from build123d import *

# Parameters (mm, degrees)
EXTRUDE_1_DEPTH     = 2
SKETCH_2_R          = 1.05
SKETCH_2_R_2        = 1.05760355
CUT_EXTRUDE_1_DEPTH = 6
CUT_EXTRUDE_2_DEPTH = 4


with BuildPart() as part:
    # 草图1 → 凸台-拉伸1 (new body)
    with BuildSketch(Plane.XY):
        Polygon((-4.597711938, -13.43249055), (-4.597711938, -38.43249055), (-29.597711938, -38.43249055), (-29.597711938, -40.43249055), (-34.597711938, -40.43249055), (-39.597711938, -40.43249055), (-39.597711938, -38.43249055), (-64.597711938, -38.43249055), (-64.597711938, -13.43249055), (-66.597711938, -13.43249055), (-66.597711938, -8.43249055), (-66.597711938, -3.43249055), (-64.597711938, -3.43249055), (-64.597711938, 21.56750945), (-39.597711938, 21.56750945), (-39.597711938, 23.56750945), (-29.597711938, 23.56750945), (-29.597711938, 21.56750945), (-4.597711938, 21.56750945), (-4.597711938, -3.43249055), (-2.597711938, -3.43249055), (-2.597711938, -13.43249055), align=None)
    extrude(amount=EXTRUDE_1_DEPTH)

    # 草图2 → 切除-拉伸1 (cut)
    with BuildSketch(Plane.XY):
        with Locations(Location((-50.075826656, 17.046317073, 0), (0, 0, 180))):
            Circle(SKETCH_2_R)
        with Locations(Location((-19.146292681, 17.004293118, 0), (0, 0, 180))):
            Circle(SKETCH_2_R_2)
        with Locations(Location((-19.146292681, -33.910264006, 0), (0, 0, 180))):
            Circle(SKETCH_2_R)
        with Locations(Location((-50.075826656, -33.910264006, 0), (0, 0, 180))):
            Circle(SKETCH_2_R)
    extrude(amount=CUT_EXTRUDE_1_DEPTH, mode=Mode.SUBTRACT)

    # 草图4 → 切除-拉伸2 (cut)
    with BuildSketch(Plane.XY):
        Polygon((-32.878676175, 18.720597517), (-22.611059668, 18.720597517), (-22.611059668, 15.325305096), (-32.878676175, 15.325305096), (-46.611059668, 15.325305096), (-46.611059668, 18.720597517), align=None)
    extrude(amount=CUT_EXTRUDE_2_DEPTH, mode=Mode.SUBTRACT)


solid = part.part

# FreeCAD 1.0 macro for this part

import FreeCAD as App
import Part
import Sketcher


def add_polygon(sketch, points):
    """Adds a closed chain of lines whose ends are joined by coincident constraints."""
    first, n = sketch.GeometryCount, len(points)
    for a, b in zip(points, points[1:] + points[:1]):
        sketch.addGeometry(Part.LineSegment(App.Vector(*a, 0), App.Vector(*b, 0)), False)
    for i in range(n):
        sketch.addConstraint(Sketcher.Constraint("Coincident", first + i, 2, first + (i + 1) % n, 1))

doc = App.newDocument("Part")
params = doc.addObject("Spreadsheet::Sheet", "Params")
for row, (alias, value) in enumerate([
    ("sketch1_width", "2 mm"),
    ("sketch1_width2", "25 mm"),
    ("sketch1_width3", "10 mm"),
    ("pad1_length", "2 mm"),
    ("sketch2_diameter", "2.1 mm"),
    ("pocket1_length", "6 mm"),
    ("sketch3_width", "24 mm"),
    ("pocket2_length", "4 mm"),
], start=1):
    params.set(f"A{row}", alias)
    params.set(f"B{row}", "=" + value)
    params.setAlias(f"B{row}", alias)

body = doc.addObject("PartDesign::Body", "Body")

# Sketch on XY plane
sketch1 = doc.addObject("Sketcher::SketchObject", "Sketch")
body.addObject(sketch1)
sketch1.AttachmentSupport = (doc.XY_Plane, [""])
sketch1.MapMode = "FlatFace"
add_polygon(sketch1, [(-4.6, -38.4), (-4.6, -13.4), (-2.6, -13.4), (-2.6, -3.4), (-4.6, -3.4), (-4.6, 21.6), (-29.6, 21.6), (-29.6, 23.6), (-39.6, 23.6), (-39.6, 21.6), (-64.6, 21.6), (-64.6, -3.4), (-66.6, -3.4), (-66.6, -13.4), (-64.6, -13.4), (-64.6, -38.4), (-39.6, -38.4), (-39.6, -40.4), (-29.6, -40.4), (-29.6, -38.4)])  # lines 0-19
sketch1.addConstraint([
    Sketcher.Constraint("Vertical", 0),
    Sketcher.Constraint("Horizontal", 1),
    Sketcher.Constraint("Vertical", 2),
    Sketcher.Constraint("Horizontal", 3),
    Sketcher.Constraint("Vertical", 4),
    Sketcher.Constraint("Horizontal", 5),
    Sketcher.Constraint("Vertical", 6),
    Sketcher.Constraint("Horizontal", 7),
    Sketcher.Constraint("Vertical", 8),
    Sketcher.Constraint("Horizontal", 9),
    Sketcher.Constraint("Vertical", 10),
    Sketcher.Constraint("Horizontal", 11),
    Sketcher.Constraint("Vertical", 12),
    Sketcher.Constraint("Horizontal", 13),
    Sketcher.Constraint("Vertical", 14),
    Sketcher.Constraint("Horizontal", 15),
    Sketcher.Constraint("Vertical", 16),
    Sketcher.Constraint("Horizontal", 17),
    Sketcher.Constraint("Vertical", 18),
    Sketcher.Constraint("Horizontal", 19),
    Sketcher.Constraint("Horizontal", 5, 2, 8, 2),
    Sketcher.Constraint("Horizontal", 3, 2, 10, 2),
    Sketcher.Constraint("Horizontal", 1, 2, 12, 2),
    Sketcher.Constraint("Horizontal", 15, 2, 18, 2),
    Sketcher.Constraint("Vertical", 0, 2, 3, 2),
    Sketcher.Constraint("Vertical", 10, 2, 13, 2),
    Sketcher.Constraint("Vertical", 8, 2, 15, 2),
    Sketcher.Constraint("Vertical", 6, 2, 17, 2),
    Sketcher.Constraint("Equal", 5, 9),
    Sketcher.Constraint("Equal", 3, 11),
    Sketcher.Constraint("Equal", 19, 0),
    Sketcher.Constraint("Equal", 17, 2),
    Sketcher.Constraint("Equal", 0, 4),
    Sketcher.Constraint("Equal", 13, 6),
    Sketcher.Constraint("Equal", 8, 16),
    Sketcher.Constraint("DistanceX", 1, 1, 1, 2, 2.0),
    Sketcher.Constraint("DistanceX", 5, 2, 5, 1, 25.0),
    Sketcher.Constraint("DistanceX", 7, 2, 7, 1, 10.0),
    Sketcher.Constraint("DistanceX", 0, 2, -1, 1, 4.597712),
    Sketcher.Constraint("DistanceY", 0, 2, -1, 1, 13.432491),
])
sketch1.setExpression("Constraints[55]", "Params.sketch1_width")
sketch1.setExpression("Constraints[56]", "Params.sketch1_width2")
sketch1.setExpression("Constraints[57]", "Params.sketch1_width3")
pad1 = doc.addObject("PartDesign::Pad", "Pad")
body.addObject(pad1)
pad1.Profile = sketch1
pad1.setExpression("Length", "Params.pad1_length")

# Sketch on XY plane
sketch2 = doc.addObject("Sketcher::SketchObject", "Sketch001")
body.addObject(sketch2)
sketch2.AttachmentSupport = (doc.XY_Plane, [""])
sketch2.MapMode = "FlatFace"
sketch2.addGeometry([
    Part.Circle(App.Vector(-50.1, 17, 0), App.Vector(0, 0, 1), 1.1),
    Part.Circle(App.Vector(-19.1, 17, 0), App.Vector(0, 0, 1), 1.1),
    Part.Circle(App.Vector(-19.1, -33.9, 0), App.Vector(0, 0, 1), 1.1),
    Part.Circle(App.Vector(-50.1, -33.9, 0), App.Vector(0, 0, 1), 1.1),
], False)
sketch2.addConstraint([
    Sketcher.Constraint("Equal", 0, 2),
    Sketcher.Constraint("Equal", 2, 3),
    Sketcher.Constraint("Horizontal", 2, 3, 3, 3),
    Sketcher.Constraint("Vertical", 1, 3, 2, 3),
    Sketcher.Constraint("Vertical", 0, 3, 3, 3),
    Sketcher.Constraint("Diameter", 0, 2.1),
    Sketcher.Constraint("Diameter", 1, 2.115207),
    Sketcher.Constraint("DistanceY", 2, 3, 0, 3, 50.956581),
    Sketcher.Constraint("DistanceX", 0, 3, -1, 1, 50.075827),
    Sketcher.Constraint("DistanceY", -1, 1, 0, 3, 17.046317),
    Sketcher.Constraint("DistanceX", 1, 3, -1, 1, 19.146293),
    Sketcher.Constraint("DistanceY", -1, 1, 1, 3, 17.004293),
])
sketch2.setExpression("Constraints[5]", "Params.sketch2_diameter")
pocket1 = doc.addObject("PartDesign::Pocket", "Pocket")
body.addObject(pocket1)
pocket1.Profile = sketch2
pocket1.setExpression("Length", "Params.pocket1_length")
pocket1.Reversed = True

# Sketch on XY plane
sketch3 = doc.addObject("Sketcher::SketchObject", "Sketch002")
body.addObject(sketch3)
sketch3.AttachmentSupport = (doc.XY_Plane, [""])
sketch3.MapMode = "FlatFace"
add_polygon(sketch3, [(-22.6, 18.7), (-46.6, 18.7), (-46.6, 15.3), (-22.6, 15.3)])  # lines 0-3
sketch3.addConstraint([
    Sketcher.Constraint("Horizontal", 0),
    Sketcher.Constraint("Vertical", 1),
    Sketcher.Constraint("Horizontal", 2),
    Sketcher.Constraint("Vertical", 3),
    Sketcher.Constraint("DistanceX", 0, 2, 0, 1, 24.0),
    Sketcher.Constraint("DistanceY", 1, 2, 1, 1, 3.395292),
    Sketcher.Constraint("DistanceX", 0, 2, -1, 1, 46.61106),
    Sketcher.Constraint("DistanceY", -1, 1, 0, 2, 18.720598),
])
sketch3.setExpression("Constraints[8]", "Params.sketch3_width")
pocket2 = doc.addObject("PartDesign::Pocket", "Pocket001")
body.addObject(pocket2)
pocket2.Profile = sketch3
pocket2.setExpression("Length", "Params.pocket2_length")
pocket2.Reversed = True

doc.recompute()
